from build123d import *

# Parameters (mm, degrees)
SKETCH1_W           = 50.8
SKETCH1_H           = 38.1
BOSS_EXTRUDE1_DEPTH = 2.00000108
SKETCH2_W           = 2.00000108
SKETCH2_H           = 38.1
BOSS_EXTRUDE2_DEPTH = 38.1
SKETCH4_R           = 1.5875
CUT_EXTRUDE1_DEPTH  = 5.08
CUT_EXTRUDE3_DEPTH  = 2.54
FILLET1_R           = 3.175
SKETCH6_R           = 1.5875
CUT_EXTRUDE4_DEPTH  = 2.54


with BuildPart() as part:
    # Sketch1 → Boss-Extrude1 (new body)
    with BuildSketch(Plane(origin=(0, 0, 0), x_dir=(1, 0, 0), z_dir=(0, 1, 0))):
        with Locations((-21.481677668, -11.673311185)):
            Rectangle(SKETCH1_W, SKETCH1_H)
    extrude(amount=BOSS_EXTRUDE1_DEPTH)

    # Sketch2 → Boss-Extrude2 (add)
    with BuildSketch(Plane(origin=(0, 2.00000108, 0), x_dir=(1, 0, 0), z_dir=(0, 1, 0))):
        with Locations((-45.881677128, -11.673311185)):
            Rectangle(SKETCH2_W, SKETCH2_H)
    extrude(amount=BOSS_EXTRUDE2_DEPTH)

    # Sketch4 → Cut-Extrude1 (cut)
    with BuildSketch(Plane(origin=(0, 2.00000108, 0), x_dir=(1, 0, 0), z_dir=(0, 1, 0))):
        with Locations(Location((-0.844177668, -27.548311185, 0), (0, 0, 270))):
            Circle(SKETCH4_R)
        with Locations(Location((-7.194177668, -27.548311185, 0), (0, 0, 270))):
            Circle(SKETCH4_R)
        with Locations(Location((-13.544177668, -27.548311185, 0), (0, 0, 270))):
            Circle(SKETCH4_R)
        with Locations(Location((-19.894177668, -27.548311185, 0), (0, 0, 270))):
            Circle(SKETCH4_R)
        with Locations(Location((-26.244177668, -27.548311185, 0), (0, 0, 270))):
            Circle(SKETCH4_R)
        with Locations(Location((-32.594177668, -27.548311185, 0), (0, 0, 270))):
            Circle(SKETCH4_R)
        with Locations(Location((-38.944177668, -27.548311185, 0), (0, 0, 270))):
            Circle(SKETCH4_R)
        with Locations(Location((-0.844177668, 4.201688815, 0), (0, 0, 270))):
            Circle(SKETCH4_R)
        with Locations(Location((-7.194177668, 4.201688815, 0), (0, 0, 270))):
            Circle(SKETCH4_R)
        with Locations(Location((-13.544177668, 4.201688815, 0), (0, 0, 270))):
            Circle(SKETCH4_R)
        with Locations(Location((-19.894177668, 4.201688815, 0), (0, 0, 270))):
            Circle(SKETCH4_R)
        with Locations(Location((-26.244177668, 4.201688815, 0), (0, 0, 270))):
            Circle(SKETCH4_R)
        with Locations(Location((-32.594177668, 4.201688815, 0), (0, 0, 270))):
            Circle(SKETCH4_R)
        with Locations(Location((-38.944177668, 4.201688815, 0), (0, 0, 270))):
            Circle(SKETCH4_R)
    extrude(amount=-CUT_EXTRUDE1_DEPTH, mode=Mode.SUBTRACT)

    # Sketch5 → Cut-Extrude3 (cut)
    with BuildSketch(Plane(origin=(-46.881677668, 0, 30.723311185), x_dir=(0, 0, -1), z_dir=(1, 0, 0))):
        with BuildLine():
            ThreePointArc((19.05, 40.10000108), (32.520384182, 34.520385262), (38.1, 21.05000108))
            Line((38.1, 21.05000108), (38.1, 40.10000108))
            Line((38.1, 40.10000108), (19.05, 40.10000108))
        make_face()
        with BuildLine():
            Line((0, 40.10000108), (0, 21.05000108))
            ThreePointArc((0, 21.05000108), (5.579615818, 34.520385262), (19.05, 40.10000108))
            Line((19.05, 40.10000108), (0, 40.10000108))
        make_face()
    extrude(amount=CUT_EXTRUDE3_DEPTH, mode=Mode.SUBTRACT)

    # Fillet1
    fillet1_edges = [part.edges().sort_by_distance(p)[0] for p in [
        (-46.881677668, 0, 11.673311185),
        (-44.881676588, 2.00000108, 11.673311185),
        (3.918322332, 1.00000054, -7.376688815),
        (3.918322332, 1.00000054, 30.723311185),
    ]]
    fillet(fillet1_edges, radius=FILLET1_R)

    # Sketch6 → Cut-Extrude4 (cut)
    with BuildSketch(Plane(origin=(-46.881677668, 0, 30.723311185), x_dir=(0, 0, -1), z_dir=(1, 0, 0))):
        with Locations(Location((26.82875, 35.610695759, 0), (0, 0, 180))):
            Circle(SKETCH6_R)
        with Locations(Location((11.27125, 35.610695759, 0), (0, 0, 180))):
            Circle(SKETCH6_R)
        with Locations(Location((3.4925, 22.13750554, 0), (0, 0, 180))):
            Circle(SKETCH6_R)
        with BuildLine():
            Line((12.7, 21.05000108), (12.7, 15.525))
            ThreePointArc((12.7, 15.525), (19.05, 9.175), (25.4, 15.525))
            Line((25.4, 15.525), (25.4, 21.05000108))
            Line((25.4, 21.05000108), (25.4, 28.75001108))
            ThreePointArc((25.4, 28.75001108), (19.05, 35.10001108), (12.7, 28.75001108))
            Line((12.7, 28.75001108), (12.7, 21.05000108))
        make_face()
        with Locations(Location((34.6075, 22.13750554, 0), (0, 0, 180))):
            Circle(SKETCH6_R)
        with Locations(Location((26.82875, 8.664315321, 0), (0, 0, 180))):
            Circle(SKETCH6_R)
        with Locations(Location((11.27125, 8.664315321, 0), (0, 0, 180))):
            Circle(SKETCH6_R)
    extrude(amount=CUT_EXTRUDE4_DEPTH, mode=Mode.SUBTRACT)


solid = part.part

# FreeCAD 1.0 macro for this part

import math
import FreeCAD as App
import Part
import Sketcher
from FreeCAD import Vector
Q = App.Units.Quantity


def edges_at(feature, points):
    """Names of the edges that pass closest to the given points."""
    edges = feature.Shape.Edges
    near = lambda p: min(range(len(edges)), key=lambda i: edges[i].distToShape(Part.Vertex(*p))[0])
    return sorted({f"Edge{near(p) + 1}" for p in points})

doc = App.newDocument("Part")
body = doc.addObject("PartDesign::Body", "Body")

# Sketch on XZ plane
sketch1 = body.newObject("Sketcher::SketchObject", "Sketch")
sketch1.AttachmentSupport = (doc.getObject("XZ_Plane"), [""])
sketch1.MapMode = "FlatFace"
sketch1.addGeometry([
    Part.LineSegment(Vector(-46.881678, -7.376689, 0), Vector(-46.881678, 30.723311, 0)),
    Part.LineSegment(Vector(-46.881678, 30.723311, 0), Vector(3.918322, 30.723311, 0)),
    Part.LineSegment(Vector(3.918322, 30.723311, 0), Vector(3.918322, -7.376689, 0)),
    Part.LineSegment(Vector(3.918322, -7.376689, 0), Vector(-46.881678, -7.376689, 0)),
], False)
sketch1.addConstraint([
    Sketcher.Constraint("Coincident", 0, 2, 1, 1),
    Sketcher.Constraint("Coincident", 1, 2, 2, 1),
    Sketcher.Constraint("Coincident", 2, 2, 3, 1),
    Sketcher.Constraint("Coincident", 3, 2, 0, 1),
    Sketcher.Constraint("Vertical", 0),
    Sketcher.Constraint("Horizontal", 1),
    Sketcher.Constraint("Vertical", 2),
    Sketcher.Constraint("Horizontal", 3),
    Sketcher.Constraint("DistanceX", 1, 1, 1, 2, Q("2 in")),
    Sketcher.Constraint("DistanceY", 0, 1, 0, 2, Q("1.5 in")),
    Sketcher.Constraint("DistanceY", -1, 1, 0, 2, Q("30.723311 mm")),
    Sketcher.Constraint("DistanceX", 0, 2, -1, 1, Q("46.881678 mm")),
])
pad1 = body.newObject("PartDesign::Pad", "Pad")
pad1.Profile = sketch1
pad1.Length = 2.000001
pad1.Reversed = True

# Sketch on XZ plane
sketch2 = body.newObject("Sketcher::SketchObject", "Sketch001")
sketch2.AttachmentSupport = (doc.getObject("XZ_Plane"), [""])
sketch2.MapMode = "FlatFace"
sketch2.AttachmentOffset = App.Placement(Vector(0, 0, -2.000001), App.Rotation())
sketch2.addGeometry([
    Part.LineSegment(Vector(-46.881678, -7.376689, 0), Vector(-46.881678, 30.723311, 0)),
    Part.LineSegment(Vector(-46.881678, 30.723311, 0), Vector(-44.881677, 30.723311, 0)),
    Part.LineSegment(Vector(-44.881677, 30.723311, 0), Vector(-44.881677, -7.376689, 0)),
    Part.LineSegment(Vector(-44.881677, -7.376689, 0), Vector(-46.881678, -7.376689, 0)),
], False)
sketch2.addConstraint([
    Sketcher.Constraint("Coincident", 0, 2, 1, 1),
    Sketcher.Constraint("Coincident", 1, 2, 2, 1),
    Sketcher.Constraint("Coincident", 2, 2, 3, 1),
    Sketcher.Constraint("Coincident", 3, 2, 0, 1),
    Sketcher.Constraint("Vertical", 0),
    Sketcher.Constraint("Horizontal", 1),
    Sketcher.Constraint("Vertical", 2),
    Sketcher.Constraint("Horizontal", 3),
    Sketcher.Constraint("DistanceY", 0, 1, 0, 2, Q("1.5 in")),
    Sketcher.Constraint("DistanceX", 1, 1, 1, 2, Q("2.000001 mm")),
    Sketcher.Constraint("DistanceY", -1, 1, 0, 2, Q("30.723311 mm")),
    Sketcher.Constraint("DistanceX", 0, 2, -1, 1, Q("46.881678 mm")),
])
pad2 = body.newObject("PartDesign::Pad", "Pad001")
pad2.Profile = sketch2
pad2.Length = Q("1.5 in")
pad2.Reversed = True

# Sketch on XZ plane
sketch3 = body.newObject("Sketcher::SketchObject", "Sketch002")
sketch3.AttachmentSupport = (doc.getObject("XZ_Plane"), [""])
sketch3.MapMode = "FlatFace"
sketch3.AttachmentOffset = App.Placement(Vector(0, 0, -2.000001), App.Rotation())
sketch3.addGeometry([
    Part.Circle(Vector(-0.844178, 27.548311, 0), Vector(0, 0, 1), 1.5875),  # 0
    Part.Circle(Vector(-7.194178, 27.548311, 0), Vector(0, 0, 1), 1.5875),  # 1
    Part.Circle(Vector(-13.544178, 27.548311, 0), Vector(0, 0, 1), 1.5875),  # 2
    Part.Circle(Vector(-19.894178, 27.548311, 0), Vector(0, 0, 1), 1.5875),  # 3
    Part.Circle(Vector(-26.244178, 27.548311, 0), Vector(0, 0, 1), 1.5875),  # 4
    Part.Circle(Vector(-32.594178, 27.548311, 0), Vector(0, 0, 1), 1.5875),  # 5
    Part.Circle(Vector(-38.944178, 27.548311, 0), Vector(0, 0, 1), 1.5875),  # 6
    Part.Circle(Vector(-0.844178, -4.201689, 0), Vector(0, 0, 1), 1.5875),  # 7
    Part.Circle(Vector(-7.194178, -4.201689, 0), Vector(0, 0, 1), 1.5875),  # 8
    Part.Circle(Vector(-13.544178, -4.201689, 0), Vector(0, 0, 1), 1.5875),  # 9
    Part.Circle(Vector(-19.894178, -4.201689, 0), Vector(0, 0, 1), 1.5875),  # 10
    Part.Circle(Vector(-26.244178, -4.201689, 0), Vector(0, 0, 1), 1.5875),  # 11
    Part.Circle(Vector(-32.594178, -4.201689, 0), Vector(0, 0, 1), 1.5875),  # 12
    Part.Circle(Vector(-38.944178, -4.201689, 0), Vector(0, 0, 1), 1.5875),  # 13
], False)
sketch3.addConstraint([
    Sketcher.Constraint("Equal", 0, 1),
    Sketcher.Constraint("Equal", 1, 2),
    Sketcher.Constraint("Equal", 2, 3),
    Sketcher.Constraint("Equal", 3, 4),
    Sketcher.Constraint("Equal", 4, 5),
    Sketcher.Constraint("Equal", 5, 6),
    Sketcher.Constraint("Equal", 6, 7),
    Sketcher.Constraint("Equal", 7, 8),
    Sketcher.Constraint("Equal", 8, 9),
    Sketcher.Constraint("Equal", 9, 10),
    Sketcher.Constraint("Equal", 10, 11),
    Sketcher.Constraint("Equal", 11, 12),
    Sketcher.Constraint("Equal", 12, 13),
    Sketcher.Constraint("Horizontal", 0, 3, 1, 3),
    Sketcher.Constraint("Horizontal", 1, 3, 2, 3),
    Sketcher.Constraint("Horizontal", 2, 3, 3, 3),
    Sketcher.Constraint("Horizontal", 3, 3, 4, 3),
    Sketcher.Constraint("Horizontal", 4, 3, 5, 3),
    Sketcher.Constraint("Horizontal", 5, 3, 6, 3),
    Sketcher.Constraint("Horizontal", 7, 3, 8, 3),
    Sketcher.Constraint("Horizontal", 8, 3, 9, 3),
    Sketcher.Constraint("Horizontal", 9, 3, 10, 3),
    Sketcher.Constraint("Horizontal", 10, 3, 11, 3),
    Sketcher.Constraint("Horizontal", 11, 3, 12, 3),
    Sketcher.Constraint("Horizontal", 12, 3, 13, 3),
    Sketcher.Constraint("Vertical", 0, 3, 7, 3),
    Sketcher.Constraint("Vertical", 1, 3, 8, 3),
    Sketcher.Constraint("Vertical", 2, 3, 9, 3),
    Sketcher.Constraint("Vertical", 3, 3, 10, 3),
    Sketcher.Constraint("Vertical", 4, 3, 11, 3),
    Sketcher.Constraint("Vertical", 5, 3, 12, 3),
    Sketcher.Constraint("Vertical", 6, 3, 13, 3),
    Sketcher.Constraint("Diameter", 0, Q("0.125 in")),
    Sketcher.Constraint("DistanceX", 4, 3, 0, 3, Q("1 in")),
    Sketcher.Constraint("DistanceX", 5, 3, 1, 3, Q("1 in")),
    Sketcher.Constraint("DistanceX", 6, 3, 2, 3, Q("1 in")),
    Sketcher.Constraint("DistanceX", 2, 3, 0, 3, Q("0.5 in")),
    Sketcher.Constraint("DistanceX", 3, 3, 1, 3, Q("0.5 in")),
    Sketcher.Constraint("DistanceX", 1, 3, 0, 3, Q("0.25 in")),
    Sketcher.Constraint("DistanceY", 7, 3, 0, 3, Q("1.25 in")),
    Sketcher.Constraint("DistanceY", -1, 1, 0, 3, Q("27.548311 mm")),
    Sketcher.Constraint("DistanceX", 0, 3, -1, 1, Q("0.844178 mm")),
])
pocket1 = body.newObject("PartDesign::Pocket", "Pocket")
pocket1.Profile = sketch3
pocket1.Length = Q("0.2 in")
pocket1.Reversed = True

# Sketch on YZ plane
sketch4 = body.newObject("Sketcher::SketchObject", "Sketch003")
sketch4.AttachmentSupport = (doc.getObject("YZ_Plane"), [""])
sketch4.MapMode = "FlatFace"
sketch4.AttachmentOffset = App.Placement(Vector(0, 0, -46.881678), App.Rotation())
sketch4.addGeometry([
    Part.ArcOfCircle(Part.Circle(Vector(21.050001, 11.673311, 0), Vector(0, 0, 1), 19.05), math.radians(-90), math.radians(0)),  # 0
    Part.LineSegment(Vector(21.050001, -7.376689, 0), Vector(40.100001, -7.376689, 0)),  # 1
    Part.LineSegment(Vector(40.100001, -7.376689, 0), Vector(40.100001, 11.673311, 0)),  # 2
    Part.LineSegment(Vector(40.100001, 30.723311, 0), Vector(21.050001, 30.723311, 0)),  # 3
    Part.ArcOfCircle(Part.Circle(Vector(21.050001, 11.673311, 0), Vector(0, 0, 1), 19.05), math.radians(0), math.radians(90)),  # 4
    Part.LineSegment(Vector(40.100001, 11.673311, 0), Vector(40.100001, 30.723311, 0)),  # 5
], False)
sketch4.addConstraint([
    Sketcher.Constraint("Tangent", 0, 1, 1, 1),
    Sketcher.Constraint("Coincident", 1, 2, 2, 1),
    Sketcher.Constraint("Tangent", 2, 2, 0, 2),
    Sketcher.Constraint("Tangent", 3, 2, 4, 2),
    Sketcher.Constraint("Tangent", 4, 1, 5, 1),
    Sketcher.Constraint("Coincident", 5, 2, 3, 1),
    Sketcher.Constraint("Horizontal", 1),
    Sketcher.Constraint("Vertical", 2),
    Sketcher.Constraint("Horizontal", 3),
    Sketcher.Constraint("Vertical", 5),
    Sketcher.Constraint("Coincident", 4, 3, 0, 3),
    Sketcher.Constraint("Equal", 0, 4),
    Sketcher.Constraint("Radius", 0, Q("0.75 in")),
    Sketcher.Constraint("DistanceX", -1, 1, 0, 3, Q("21.050001 mm")),
    Sketcher.Constraint("DistanceY", -1, 1, 0, 3, Q("11.673311 mm")),
])
pocket2 = body.newObject("PartDesign::Pocket", "Pocket001")
pocket2.Profile = sketch4
pocket2.Length = Q("0.1 in")
pocket2.Reversed = True
doc.recompute()

fillet = body.newObject("PartDesign::Fillet", "Fillet")
fillet.Base = (pocket2, edges_at(pocket2, [
    (-46.882, 0, 11.673),
    (-44.882, 2, 11.673),
    (3.918, 1, -7.377),
    (3.918, 1, 30.723),
]))
fillet.Radius = Q("0.125 in")

# Sketch on YZ plane
sketch5 = body.newObject("Sketcher::SketchObject", "Sketch004")
sketch5.AttachmentSupport = (doc.getObject("YZ_Plane"), [""])
sketch5.MapMode = "FlatFace"
sketch5.AttachmentOffset = App.Placement(Vector(0, 0, -46.881678), App.Rotation())
sketch5.addGeometry([
    Part.Circle(Vector(35.610696, 3.894561, 0), Vector(0, 0, 1), 1.5875),  # 0
    Part.Circle(Vector(35.610696, 19.452061, 0), Vector(0, 0, 1), 1.5875),  # 1
    Part.Circle(Vector(22.137506, 27.230811, 0), Vector(0, 0, 1), 1.5875),  # 2
    Part.ArcOfCircle(Part.Circle(Vector(15.525, 11.673311, 0), Vector(0, 0, 1), 6.35), math.radians(90), math.radians(270)),  # 3
    Part.LineSegment(Vector(15.525, 5.323311, 0), Vector(28.750011, 5.323311, 0)),  # 4
    Part.ArcOfCircle(Part.Circle(Vector(28.750011, 11.673311, 0), Vector(0, 0, 1), 6.35), math.radians(-90), math.radians(90)),  # 5
    Part.LineSegment(Vector(28.750011, 18.023311, 0), Vector(15.525, 18.023311, 0)),  # 6
    Part.Circle(Vector(22.137506, -3.884189, 0), Vector(0, 0, 1), 1.5875),  # 7
    Part.Circle(Vector(8.664315, 3.894561, 0), Vector(0, 0, 1), 1.5875),  # 8
    Part.Circle(Vector(8.664315, 19.452061, 0), Vector(0, 0, 1), 1.5875),  # 9
], False)
sketch5.addConstraint([
    Sketcher.Constraint("Tangent", 3, 2, 4, 1),
    Sketcher.Constraint("Tangent", 4, 2, 5, 1),
    Sketcher.Constraint("Tangent", 5, 2, 6, 1),
    Sketcher.Constraint("Tangent", 6, 2, 3, 1),
    Sketcher.Constraint("Horizontal", 4),
    Sketcher.Constraint("Horizontal", 6),
    Sketcher.Constraint("Equal", 0, 1),
    Sketcher.Constraint("Equal", 1, 2),
    Sketcher.Constraint("Equal", 2, 7),
    Sketcher.Constraint("Equal", 7, 8),
    Sketcher.Constraint("Equal", 8, 9),
    Sketcher.Constraint("Horizontal", 0, 3, 8, 3),
    Sketcher.Constraint("Horizontal", 1, 3, 9, 3),
    Sketcher.Constraint("Vertical", 0, 3, 1, 3),
    Sketcher.Constraint("Vertical", 2, 3, 7, 3),
    Sketcher.Constraint("Vertical", 8, 3, 9, 3),
    Sketcher.Constraint("Radius", 3, Q("0.25 in")),
    Sketcher.Constraint("Diameter", 0, Q("0.125 in")),
    Sketcher.Constraint("DistanceY", 7, 3, 2, 3, Q("1.225 in")),
    Sketcher.Constraint("DistanceY", 0, 3, 1, 3, Q("0.6125 in")),
    Sketcher.Constraint("DistanceY", 3, 3, 2, 3, Q("0.6125 in")),
    Sketcher.Constraint("DistanceX", 4, 1, 4, 2, Q("13.225011 mm")),
    Sketcher.Constraint("DistanceX", -1, 1, 3, 3, Q("15.525 mm")),
    Sketcher.Constraint("DistanceY", -1, 1, 0, 3, Q("3.894561 mm")),
    Sketcher.Constraint("DistanceY", -1, 1, 2, 3, Q("27.230811 mm")),
    Sketcher.Constraint("DistanceX", 2, 3, 1, 3, Q("13.47319 mm")),
    Sketcher.Constraint("DistanceX", 8, 3, 7, 3, Q("13.47319 mm")),
    Sketcher.Constraint("DistanceX", -1, 1, 0, 3, Q("35.610696 mm")),
])
pocket3 = body.newObject("PartDesign::Pocket", "Pocket002")
pocket3.Profile = sketch5
pocket3.Length = Q("0.1 in")
pocket3.Reversed = True

doc.recompute()
